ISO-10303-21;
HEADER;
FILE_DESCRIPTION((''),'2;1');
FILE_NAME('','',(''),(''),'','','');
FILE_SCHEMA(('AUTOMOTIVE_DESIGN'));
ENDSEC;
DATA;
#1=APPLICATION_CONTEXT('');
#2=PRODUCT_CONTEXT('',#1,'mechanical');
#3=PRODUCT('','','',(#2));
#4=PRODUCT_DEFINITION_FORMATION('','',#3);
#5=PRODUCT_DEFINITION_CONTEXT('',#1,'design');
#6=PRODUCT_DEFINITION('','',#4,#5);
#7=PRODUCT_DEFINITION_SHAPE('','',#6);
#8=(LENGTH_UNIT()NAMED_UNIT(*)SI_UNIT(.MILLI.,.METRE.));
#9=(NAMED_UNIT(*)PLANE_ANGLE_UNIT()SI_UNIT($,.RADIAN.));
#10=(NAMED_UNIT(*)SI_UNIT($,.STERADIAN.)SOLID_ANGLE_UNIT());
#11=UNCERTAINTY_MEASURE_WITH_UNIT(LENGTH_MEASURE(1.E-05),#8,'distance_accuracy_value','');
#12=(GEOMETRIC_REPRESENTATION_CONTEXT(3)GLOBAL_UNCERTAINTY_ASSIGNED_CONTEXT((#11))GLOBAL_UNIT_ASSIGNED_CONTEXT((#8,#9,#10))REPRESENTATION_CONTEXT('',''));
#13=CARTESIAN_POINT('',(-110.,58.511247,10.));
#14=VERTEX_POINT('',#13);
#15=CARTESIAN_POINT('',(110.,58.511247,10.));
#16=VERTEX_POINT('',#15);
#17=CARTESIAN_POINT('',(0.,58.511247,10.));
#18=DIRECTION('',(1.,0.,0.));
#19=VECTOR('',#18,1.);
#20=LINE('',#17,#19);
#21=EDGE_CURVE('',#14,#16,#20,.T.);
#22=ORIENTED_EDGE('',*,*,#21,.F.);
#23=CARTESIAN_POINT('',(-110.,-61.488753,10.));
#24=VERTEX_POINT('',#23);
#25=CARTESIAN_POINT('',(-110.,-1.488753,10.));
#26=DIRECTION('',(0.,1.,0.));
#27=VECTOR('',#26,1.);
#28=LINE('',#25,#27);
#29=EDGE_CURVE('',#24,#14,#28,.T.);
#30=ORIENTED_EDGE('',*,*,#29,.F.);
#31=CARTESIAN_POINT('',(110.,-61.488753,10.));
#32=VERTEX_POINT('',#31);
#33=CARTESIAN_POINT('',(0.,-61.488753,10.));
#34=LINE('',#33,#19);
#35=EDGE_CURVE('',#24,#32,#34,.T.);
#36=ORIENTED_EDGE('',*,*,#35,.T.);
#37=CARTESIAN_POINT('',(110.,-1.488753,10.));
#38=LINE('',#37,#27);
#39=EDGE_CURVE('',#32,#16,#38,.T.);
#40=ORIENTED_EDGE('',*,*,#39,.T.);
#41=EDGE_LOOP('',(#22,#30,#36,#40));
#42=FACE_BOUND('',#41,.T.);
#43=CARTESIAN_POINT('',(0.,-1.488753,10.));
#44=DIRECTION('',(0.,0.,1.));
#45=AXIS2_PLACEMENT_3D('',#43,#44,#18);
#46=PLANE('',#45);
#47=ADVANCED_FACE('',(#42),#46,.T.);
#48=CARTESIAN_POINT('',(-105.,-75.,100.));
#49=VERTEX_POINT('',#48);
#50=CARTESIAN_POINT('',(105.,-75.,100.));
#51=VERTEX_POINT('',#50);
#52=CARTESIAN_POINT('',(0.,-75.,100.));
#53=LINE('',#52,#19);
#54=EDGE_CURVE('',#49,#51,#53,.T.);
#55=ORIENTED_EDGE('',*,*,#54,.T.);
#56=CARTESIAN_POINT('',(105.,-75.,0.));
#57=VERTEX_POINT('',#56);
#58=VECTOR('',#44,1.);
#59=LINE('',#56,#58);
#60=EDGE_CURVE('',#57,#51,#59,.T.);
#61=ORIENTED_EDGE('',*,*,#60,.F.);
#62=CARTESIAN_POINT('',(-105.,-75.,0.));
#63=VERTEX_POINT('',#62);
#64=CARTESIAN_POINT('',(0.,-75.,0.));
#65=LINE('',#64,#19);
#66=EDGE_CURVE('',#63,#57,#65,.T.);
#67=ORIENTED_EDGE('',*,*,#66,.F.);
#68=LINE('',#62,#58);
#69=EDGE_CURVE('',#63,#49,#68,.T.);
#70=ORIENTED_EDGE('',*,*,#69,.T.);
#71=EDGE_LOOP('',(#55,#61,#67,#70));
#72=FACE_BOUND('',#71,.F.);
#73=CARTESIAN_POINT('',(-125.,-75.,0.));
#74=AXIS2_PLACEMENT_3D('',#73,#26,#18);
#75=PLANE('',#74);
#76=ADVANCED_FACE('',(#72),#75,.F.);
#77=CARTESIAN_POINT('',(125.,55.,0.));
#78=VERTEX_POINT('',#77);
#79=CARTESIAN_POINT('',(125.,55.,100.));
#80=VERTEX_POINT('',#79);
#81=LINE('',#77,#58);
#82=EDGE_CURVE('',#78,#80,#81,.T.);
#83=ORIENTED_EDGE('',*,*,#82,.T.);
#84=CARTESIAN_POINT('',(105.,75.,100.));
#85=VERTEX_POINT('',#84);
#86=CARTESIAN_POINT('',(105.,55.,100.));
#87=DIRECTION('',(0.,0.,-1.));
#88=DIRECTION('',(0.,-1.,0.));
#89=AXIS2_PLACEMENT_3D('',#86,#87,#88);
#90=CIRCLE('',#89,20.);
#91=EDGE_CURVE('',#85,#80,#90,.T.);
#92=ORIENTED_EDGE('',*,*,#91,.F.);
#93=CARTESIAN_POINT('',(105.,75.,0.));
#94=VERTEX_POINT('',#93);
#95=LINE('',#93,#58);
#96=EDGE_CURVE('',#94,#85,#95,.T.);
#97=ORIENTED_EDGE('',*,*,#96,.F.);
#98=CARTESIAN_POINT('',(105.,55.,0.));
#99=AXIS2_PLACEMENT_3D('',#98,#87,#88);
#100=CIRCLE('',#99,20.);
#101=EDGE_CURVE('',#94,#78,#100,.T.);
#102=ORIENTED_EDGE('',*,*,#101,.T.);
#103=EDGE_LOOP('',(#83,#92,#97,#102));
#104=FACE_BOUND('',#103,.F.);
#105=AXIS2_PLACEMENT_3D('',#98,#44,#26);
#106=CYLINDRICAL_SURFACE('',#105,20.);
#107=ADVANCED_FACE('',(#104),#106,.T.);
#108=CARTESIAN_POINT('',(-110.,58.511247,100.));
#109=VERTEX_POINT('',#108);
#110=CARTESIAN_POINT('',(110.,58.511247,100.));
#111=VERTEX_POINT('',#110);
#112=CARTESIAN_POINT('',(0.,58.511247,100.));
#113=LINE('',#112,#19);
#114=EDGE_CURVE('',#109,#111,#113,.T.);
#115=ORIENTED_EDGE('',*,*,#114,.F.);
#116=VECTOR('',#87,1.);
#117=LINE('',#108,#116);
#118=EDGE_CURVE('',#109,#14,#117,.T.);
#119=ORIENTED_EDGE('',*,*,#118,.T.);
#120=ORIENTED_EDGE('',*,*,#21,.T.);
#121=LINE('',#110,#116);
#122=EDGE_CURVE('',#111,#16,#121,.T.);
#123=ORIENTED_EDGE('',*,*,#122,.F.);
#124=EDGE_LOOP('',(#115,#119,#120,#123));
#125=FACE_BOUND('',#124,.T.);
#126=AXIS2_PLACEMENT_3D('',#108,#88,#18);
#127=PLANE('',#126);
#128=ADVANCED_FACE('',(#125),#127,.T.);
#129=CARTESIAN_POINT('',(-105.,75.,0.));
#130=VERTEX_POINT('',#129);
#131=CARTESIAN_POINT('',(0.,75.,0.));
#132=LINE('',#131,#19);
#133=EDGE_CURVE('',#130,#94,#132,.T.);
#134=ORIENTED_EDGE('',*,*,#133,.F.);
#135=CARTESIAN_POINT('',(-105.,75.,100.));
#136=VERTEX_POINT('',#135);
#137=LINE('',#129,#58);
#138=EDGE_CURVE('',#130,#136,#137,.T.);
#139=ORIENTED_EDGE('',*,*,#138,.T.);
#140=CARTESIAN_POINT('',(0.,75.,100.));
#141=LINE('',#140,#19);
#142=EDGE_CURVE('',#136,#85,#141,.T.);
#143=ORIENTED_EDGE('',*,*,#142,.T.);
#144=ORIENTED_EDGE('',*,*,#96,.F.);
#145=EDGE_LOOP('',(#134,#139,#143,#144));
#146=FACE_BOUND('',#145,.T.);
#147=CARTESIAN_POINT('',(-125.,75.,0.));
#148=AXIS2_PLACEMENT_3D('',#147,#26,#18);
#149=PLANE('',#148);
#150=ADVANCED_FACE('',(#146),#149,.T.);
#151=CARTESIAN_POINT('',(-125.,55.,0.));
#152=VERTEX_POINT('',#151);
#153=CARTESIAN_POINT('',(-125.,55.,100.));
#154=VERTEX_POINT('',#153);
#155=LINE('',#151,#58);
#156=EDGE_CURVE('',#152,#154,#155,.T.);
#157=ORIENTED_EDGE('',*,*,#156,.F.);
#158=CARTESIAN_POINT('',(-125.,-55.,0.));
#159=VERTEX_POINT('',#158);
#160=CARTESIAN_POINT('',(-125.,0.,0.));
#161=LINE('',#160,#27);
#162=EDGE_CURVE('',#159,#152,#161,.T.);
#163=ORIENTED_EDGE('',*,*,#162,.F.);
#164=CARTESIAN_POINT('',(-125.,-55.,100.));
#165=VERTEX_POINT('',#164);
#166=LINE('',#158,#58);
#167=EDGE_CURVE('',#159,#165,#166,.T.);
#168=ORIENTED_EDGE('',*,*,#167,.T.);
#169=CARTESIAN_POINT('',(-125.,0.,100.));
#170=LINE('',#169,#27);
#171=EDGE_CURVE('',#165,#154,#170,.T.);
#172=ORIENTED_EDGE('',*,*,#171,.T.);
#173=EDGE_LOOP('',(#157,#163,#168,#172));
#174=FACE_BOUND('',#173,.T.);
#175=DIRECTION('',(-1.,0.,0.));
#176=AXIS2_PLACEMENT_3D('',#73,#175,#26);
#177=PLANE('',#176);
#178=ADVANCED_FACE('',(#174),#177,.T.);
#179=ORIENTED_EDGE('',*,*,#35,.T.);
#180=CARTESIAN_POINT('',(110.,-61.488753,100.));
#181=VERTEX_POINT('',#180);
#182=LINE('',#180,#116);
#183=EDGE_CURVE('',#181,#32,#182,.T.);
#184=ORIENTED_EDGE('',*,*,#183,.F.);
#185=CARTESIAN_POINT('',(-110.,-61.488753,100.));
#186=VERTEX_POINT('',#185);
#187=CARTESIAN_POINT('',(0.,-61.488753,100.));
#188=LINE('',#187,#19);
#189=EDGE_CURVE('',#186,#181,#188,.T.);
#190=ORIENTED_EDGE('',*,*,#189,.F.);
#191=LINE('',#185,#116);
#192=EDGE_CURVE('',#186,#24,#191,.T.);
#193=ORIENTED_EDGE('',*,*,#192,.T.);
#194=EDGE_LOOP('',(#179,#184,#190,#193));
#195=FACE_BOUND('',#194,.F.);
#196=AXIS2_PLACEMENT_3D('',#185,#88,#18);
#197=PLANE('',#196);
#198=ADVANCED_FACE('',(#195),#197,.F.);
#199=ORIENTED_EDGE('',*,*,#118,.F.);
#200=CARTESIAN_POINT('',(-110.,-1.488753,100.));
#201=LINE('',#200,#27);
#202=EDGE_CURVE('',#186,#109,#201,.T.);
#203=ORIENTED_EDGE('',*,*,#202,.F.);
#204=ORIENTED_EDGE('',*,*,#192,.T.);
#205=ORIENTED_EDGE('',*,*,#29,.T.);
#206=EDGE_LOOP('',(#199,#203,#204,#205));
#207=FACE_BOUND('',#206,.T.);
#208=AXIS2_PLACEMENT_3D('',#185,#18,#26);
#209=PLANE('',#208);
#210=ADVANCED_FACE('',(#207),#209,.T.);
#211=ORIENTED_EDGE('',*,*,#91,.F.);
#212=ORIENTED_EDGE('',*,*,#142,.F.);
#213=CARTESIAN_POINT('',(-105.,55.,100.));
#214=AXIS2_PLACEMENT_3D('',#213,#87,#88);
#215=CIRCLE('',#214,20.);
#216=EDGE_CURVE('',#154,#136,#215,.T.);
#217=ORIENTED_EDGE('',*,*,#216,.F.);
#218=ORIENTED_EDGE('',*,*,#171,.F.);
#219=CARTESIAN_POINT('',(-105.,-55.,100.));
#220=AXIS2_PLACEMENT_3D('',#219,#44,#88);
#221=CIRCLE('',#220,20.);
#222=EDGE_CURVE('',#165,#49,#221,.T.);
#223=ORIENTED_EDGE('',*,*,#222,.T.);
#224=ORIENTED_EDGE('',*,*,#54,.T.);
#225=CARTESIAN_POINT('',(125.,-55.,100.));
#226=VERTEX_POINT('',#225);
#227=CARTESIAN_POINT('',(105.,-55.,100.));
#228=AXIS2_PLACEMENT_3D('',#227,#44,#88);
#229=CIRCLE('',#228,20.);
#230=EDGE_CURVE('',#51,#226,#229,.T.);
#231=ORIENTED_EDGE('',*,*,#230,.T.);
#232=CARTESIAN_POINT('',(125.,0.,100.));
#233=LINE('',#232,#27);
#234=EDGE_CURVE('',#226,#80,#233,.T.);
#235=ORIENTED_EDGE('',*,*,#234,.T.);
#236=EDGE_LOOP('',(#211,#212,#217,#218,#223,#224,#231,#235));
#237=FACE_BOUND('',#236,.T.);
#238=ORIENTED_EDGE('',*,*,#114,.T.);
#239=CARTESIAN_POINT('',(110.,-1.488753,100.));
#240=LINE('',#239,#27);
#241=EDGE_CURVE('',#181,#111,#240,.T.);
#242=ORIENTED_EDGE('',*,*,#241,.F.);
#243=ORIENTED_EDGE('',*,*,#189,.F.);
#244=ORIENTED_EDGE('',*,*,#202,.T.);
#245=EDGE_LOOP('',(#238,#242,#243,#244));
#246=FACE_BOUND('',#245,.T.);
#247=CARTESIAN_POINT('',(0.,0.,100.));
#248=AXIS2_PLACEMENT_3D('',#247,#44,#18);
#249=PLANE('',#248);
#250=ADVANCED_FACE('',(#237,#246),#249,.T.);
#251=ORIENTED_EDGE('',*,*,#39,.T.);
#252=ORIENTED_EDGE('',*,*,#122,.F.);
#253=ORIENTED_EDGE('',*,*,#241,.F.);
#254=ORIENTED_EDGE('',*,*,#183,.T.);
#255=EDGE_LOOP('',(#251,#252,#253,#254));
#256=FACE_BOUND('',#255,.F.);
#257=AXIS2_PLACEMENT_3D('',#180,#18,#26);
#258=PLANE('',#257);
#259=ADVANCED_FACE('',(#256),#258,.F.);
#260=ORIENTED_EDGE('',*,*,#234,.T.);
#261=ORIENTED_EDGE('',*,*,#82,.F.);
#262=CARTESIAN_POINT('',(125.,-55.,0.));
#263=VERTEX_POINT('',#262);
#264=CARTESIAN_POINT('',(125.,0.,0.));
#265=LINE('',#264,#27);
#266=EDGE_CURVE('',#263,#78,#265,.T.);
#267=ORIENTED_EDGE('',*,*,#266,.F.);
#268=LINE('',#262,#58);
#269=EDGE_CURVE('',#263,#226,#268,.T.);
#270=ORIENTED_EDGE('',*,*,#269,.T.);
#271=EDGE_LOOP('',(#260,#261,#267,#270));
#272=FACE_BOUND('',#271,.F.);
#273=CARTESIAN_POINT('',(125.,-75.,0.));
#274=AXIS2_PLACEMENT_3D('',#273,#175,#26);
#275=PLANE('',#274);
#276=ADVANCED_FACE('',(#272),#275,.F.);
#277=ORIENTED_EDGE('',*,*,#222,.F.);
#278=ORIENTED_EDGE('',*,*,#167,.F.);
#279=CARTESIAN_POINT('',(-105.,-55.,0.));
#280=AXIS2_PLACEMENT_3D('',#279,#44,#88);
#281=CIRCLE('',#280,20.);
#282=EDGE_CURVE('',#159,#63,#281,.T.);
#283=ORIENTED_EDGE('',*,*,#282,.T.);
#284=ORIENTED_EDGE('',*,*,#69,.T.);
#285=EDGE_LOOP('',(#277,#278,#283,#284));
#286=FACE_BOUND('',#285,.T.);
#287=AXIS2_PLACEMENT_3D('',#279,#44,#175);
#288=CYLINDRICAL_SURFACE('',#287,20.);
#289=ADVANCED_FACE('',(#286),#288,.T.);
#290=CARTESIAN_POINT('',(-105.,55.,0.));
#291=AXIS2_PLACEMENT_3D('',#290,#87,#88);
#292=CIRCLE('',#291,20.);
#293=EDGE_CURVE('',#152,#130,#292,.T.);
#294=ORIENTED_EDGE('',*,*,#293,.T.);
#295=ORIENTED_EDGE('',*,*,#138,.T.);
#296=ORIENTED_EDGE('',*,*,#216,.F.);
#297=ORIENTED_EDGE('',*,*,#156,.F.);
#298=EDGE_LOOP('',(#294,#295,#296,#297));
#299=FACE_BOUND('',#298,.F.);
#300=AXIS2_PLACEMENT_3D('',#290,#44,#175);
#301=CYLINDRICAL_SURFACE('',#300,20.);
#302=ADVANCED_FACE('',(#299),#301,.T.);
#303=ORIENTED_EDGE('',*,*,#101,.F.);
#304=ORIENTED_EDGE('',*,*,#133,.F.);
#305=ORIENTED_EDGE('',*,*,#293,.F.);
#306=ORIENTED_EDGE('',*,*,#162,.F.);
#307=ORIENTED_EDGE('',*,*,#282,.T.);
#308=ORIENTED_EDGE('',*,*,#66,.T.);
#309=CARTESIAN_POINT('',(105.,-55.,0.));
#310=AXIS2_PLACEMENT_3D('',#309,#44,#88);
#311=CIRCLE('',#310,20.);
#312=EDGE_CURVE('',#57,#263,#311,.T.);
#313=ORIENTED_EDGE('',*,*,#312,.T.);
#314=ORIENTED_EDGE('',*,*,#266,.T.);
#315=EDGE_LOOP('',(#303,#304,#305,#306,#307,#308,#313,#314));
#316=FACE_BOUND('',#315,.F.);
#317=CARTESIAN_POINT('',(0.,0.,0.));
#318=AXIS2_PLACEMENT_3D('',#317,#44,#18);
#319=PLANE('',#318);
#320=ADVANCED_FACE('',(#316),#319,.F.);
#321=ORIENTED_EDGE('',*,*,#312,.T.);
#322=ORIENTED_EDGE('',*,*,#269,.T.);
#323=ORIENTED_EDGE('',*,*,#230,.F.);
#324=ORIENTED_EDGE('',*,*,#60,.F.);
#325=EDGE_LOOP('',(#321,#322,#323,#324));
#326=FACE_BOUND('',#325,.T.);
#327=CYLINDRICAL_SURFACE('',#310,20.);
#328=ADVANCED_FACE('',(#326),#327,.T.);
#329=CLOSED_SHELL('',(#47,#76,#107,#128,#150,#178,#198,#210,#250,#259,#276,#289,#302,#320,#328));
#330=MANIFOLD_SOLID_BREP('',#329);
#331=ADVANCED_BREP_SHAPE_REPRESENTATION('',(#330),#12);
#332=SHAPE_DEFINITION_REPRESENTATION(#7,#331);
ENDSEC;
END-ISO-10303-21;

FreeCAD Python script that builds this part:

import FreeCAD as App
import Part
import Sketcher

V = App.Vector
Q = App.Units.Quantity


def edges_at(feature, points):
    """Names of the edges that pass closest to the given points."""
    edges = feature.Shape.Edges
    near = lambda p: min(range(len(edges)), key=lambda i: edges[i].distToShape(Part.Vertex(*p))[0])
    return sorted({f"Edge{near(p) + 1}" for p in points})

doc = App.newDocument("Part")
body = doc.addObject("PartDesign::Body", "Body")

sketch1 = doc.addObject("Sketcher::SketchObject", "Sketch")
body.addObject(sketch1)
sketch1.AttachmentSupport = (doc.XY_Plane, [""])
sketch1.MapMode = "FlatFace"
sketch1.addGeometry(Part.LineSegment(V(-125, 75, 0), V(-125, -75, 0)), False)
sketch1.addGeometry(Part.LineSegment(V(-125, -75, 0), V(125, -75, 0)), False)
sketch1.addGeometry(Part.LineSegment(V(125, -75, 0), V(125, 75, 0)), False)
sketch1.addGeometry(Part.LineSegment(V(125, 75, 0), V(-125, 75, 0)), False)
sketch1.addConstraint(Sketcher.Constraint("Coincident", 0, 2, 1, 1))
sketch1.addConstraint(Sketcher.Constraint("Coincident", 1, 2, 2, 1))
sketch1.addConstraint(Sketcher.Constraint("Coincident", 2, 2, 3, 1))
sketch1.addConstraint(Sketcher.Constraint("Coincident", 3, 2, 0, 1))
sketch1.addConstraint(Sketcher.Constraint("Vertical", 0))
sketch1.addConstraint(Sketcher.Constraint("Horizontal", 1))
sketch1.addConstraint(Sketcher.Constraint("Vertical", 2))
sketch1.addConstraint(Sketcher.Constraint("Horizontal", 3))
sketch1.addConstraint(Sketcher.Constraint("Symmetric", 0, 2, 2, 2, -1, 1))
sketch1.addConstraint(Sketcher.Constraint("DistanceX", 1, 1, 1, 2, Q("250 mm")))
sketch1.addConstraint(Sketcher.Constraint("DistanceY", 0, 2, 0, 1, Q("150 mm")))
pad1 = doc.addObject("PartDesign::Pad", "Pad")
body.addObject(pad1)
pad1.Profile = sketch1
pad1.Length = 100

sketch2 = doc.addObject("Sketcher::SketchObject", "Sketch001")
body.addObject(sketch2)
sketch2.AttachmentSupport = (doc.XY_Plane, [""])
sketch2.MapMode = "FlatFace"
sketch2.AttachmentOffset = App.Placement(V(0, 0, 100), App.Rotation())
sketch2.addGeometry(Part.LineSegment(V(-110, 59, 0), V(-110, -61, 0)), False)
sketch2.addGeometry(Part.LineSegment(V(-110, -61, 0), V(110, -61, 0)), False)
sketch2.addGeometry(Part.LineSegment(V(110, -61, 0), V(110, 59, 0)), False)
sketch2.addGeometry(Part.LineSegment(V(110, 59, 0), V(-110, 59, 0)), False)
sketch2.addConstraint(Sketcher.Constraint("Coincident", 0, 2, 1, 1))
sketch2.addConstraint(Sketcher.Constraint("Coincident", 1, 2, 2, 1))
sketch2.addConstraint(Sketcher.Constraint("Coincident", 2, 2, 3, 1))
sketch2.addConstraint(Sketcher.Constraint("Coincident", 3, 2, 0, 1))
sketch2.addConstraint(Sketcher.Constraint("Vertical", 0))
sketch2.addConstraint(Sketcher.Constraint("Horizontal", 1))
sketch2.addConstraint(Sketcher.Constraint("Vertical", 2))
sketch2.addConstraint(Sketcher.Constraint("Horizontal", 3))
sketch2.addConstraint(Sketcher.Constraint("DistanceX", 1, 1, 1, 2, Q("220 mm")))
sketch2.addConstraint(Sketcher.Constraint("DistanceY", 0, 2, 0, 1, Q("120 mm")))
sketch2.addConstraint(Sketcher.Constraint("DistanceX", 0, 2, -1, 1, Q("110 mm")))
sketch2.addConstraint(Sketcher.Constraint("DistanceY", 0, 2, -1, 1, Q("61.488753 mm")))
pocket1 = doc.addObject("PartDesign::Pocket", "Pocket")
body.addObject(pocket1)
pocket1.Profile = sketch2
pocket1.Length = 90
doc.recompute()

fillet = doc.addObject("PartDesign::Fillet", "Fillet")
body.addObject(fillet)
fillet.Base = (pocket1, edges_at(pocket1, [
    (125, -75, 50),
    (125, 75, 50),
    (-125, 75, 50),
    (-125, -75, 50),
]))
fillet.Radius = 20

doc.recompute()
